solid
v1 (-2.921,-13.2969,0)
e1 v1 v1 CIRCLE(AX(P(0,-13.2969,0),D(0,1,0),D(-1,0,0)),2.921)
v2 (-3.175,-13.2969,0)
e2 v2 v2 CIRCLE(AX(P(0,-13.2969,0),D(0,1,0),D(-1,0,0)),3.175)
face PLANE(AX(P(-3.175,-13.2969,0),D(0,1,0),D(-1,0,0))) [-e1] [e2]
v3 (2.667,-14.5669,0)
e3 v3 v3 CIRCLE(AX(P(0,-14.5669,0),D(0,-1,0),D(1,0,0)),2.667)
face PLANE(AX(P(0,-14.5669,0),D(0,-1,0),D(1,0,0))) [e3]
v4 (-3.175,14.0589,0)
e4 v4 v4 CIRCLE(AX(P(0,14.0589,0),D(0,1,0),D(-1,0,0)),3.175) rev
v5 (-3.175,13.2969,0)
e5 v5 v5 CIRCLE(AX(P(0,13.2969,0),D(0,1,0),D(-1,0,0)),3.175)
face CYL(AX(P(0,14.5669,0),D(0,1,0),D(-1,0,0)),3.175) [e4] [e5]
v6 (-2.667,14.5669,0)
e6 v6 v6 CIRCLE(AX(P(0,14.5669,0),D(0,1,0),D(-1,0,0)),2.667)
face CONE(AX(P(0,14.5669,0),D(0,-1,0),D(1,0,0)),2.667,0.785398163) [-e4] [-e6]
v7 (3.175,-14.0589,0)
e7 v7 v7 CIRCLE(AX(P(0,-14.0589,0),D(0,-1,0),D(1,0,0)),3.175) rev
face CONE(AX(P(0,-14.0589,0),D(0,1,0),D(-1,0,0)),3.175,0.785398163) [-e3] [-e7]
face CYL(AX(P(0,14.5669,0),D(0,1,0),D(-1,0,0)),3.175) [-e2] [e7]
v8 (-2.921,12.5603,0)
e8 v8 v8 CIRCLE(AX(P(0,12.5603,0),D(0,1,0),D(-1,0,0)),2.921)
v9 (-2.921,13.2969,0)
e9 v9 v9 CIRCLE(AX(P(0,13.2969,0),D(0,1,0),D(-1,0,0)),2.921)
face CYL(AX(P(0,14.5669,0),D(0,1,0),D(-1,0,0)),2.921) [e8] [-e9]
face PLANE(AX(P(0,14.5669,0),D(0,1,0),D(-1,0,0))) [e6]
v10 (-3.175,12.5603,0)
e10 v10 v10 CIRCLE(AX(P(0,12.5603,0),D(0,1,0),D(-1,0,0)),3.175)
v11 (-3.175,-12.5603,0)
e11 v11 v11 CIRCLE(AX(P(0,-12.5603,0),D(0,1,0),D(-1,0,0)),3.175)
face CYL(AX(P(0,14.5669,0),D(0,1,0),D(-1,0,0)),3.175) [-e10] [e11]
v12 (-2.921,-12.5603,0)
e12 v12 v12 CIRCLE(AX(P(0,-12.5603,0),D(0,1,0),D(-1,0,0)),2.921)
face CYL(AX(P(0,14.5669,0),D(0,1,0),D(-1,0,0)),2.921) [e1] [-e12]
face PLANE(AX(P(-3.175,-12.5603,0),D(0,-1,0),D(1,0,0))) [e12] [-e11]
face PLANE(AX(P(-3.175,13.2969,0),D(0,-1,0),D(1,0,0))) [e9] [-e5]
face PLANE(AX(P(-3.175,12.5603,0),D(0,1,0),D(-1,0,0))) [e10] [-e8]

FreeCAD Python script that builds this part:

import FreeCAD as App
import Part
import Sketcher

V = App.Vector
Q = App.Units.Quantity


def edges_at(feature, points):
    """Names of the edges that pass closest to the given points."""
    edges = feature.Shape.Edges
    near = lambda p: min(range(len(edges)), key=lambda i: edges[i].distToShape(Part.Vertex(*p))[0])
    return sorted({f"Edge{near(p) + 1}" for p in points})

doc = App.newDocument("Part")
body = doc.addObject("PartDesign::Body", "Body")

sketch1 = body.newObject("Sketcher::SketchObject", "Sketch")
sketch1.AttachmentSupport = (doc.getObject("XY_Plane"), [""])
sketch1.MapMode = "FlatFace"
sketch1.addGeometry([
    Part.LineSegment(V(-3.17, 12.56, 0), V(-3.17, -12.56, 0)),
    Part.LineSegment(V(-3.17, -12.56, 0), V(-2.92, -12.56, 0)),
    Part.LineSegment(V(-2.92, -12.56, 0), V(-2.92, -13.3, 0)),
    Part.LineSegment(V(-2.92, -13.3, 0), V(-3.17, -13.3, 0)),
    Part.LineSegment(V(-3.17, -13.3, 0), V(-3.17, -14.57, 0)),
    Part.LineSegment(V(-3.17, -14.57, 0), V(0, -14.57, 0)),
    Part.LineSegment(V(0, -14.57, 0), V(0, 14.57, 0)),
    Part.LineSegment(V(0, 14.57, 0), V(-3.17, 14.57, 0)),
    Part.LineSegment(V(-3.17, 14.57, 0), V(-3.17, 13.3, 0)),
    Part.LineSegment(V(-3.17, 13.3, 0), V(-2.92, 13.3, 0)),
    Part.LineSegment(V(-2.92, 13.3, 0), V(-2.92, 12.56, 0)),
    Part.LineSegment(V(-2.92, 12.56, 0), V(-3.17, 12.56, 0)),
], False)
sketch1.addConstraint([
    Sketcher.Constraint("Coincident", 0, 2, 1, 1),
    Sketcher.Constraint("Coincident", 1, 2, 2, 1),
    Sketcher.Constraint("Coincident", 2, 2, 3, 1),
    Sketcher.Constraint("Coincident", 3, 2, 4, 1),
    Sketcher.Constraint("Coincident", 4, 2, 5, 1),
    Sketcher.Constraint("Coincident", 5, 2, 6, 1),
    Sketcher.Constraint("Coincident", 6, 2, 7, 1),
    Sketcher.Constraint("Coincident", 7, 2, 8, 1),
    Sketcher.Constraint("Coincident", 8, 2, 9, 1),
    Sketcher.Constraint("Coincident", 9, 2, 10, 1),
    Sketcher.Constraint("Coincident", 10, 2, 11, 1),
    Sketcher.Constraint("Coincident", 11, 2, 0, 1),
    Sketcher.Constraint("Vertical", 0),
    Sketcher.Constraint("Horizontal", 1),
    Sketcher.Constraint("Vertical", 2),
    Sketcher.Constraint("Horizontal", 3),
    Sketcher.Constraint("Vertical", 4),
    Sketcher.Constraint("Horizontal", 5),
    Sketcher.Constraint("Vertical", 6),
    Sketcher.Constraint("Horizontal", 7),
    Sketcher.Constraint("Vertical", 8),
    Sketcher.Constraint("Horizontal", 9),
    Sketcher.Constraint("Vertical", 10),
    Sketcher.Constraint("Horizontal", 11),
    Sketcher.Constraint("Symmetric", 5, 2, 6, 2, -1, 1),
    Sketcher.Constraint("Symmetric", 3, 2, 8, 2, -1),
    Sketcher.Constraint("Symmetric", 1, 2, 10, 2, -1),
    Sketcher.Constraint("Vertical", 0, 2, 3, 2),
    Sketcher.Constraint("DistanceX", 1, 1, 1, 2, Q("0.01 in")),
    Sketcher.Constraint("DistanceY", 4, 2, 4, 1, Q("0.05 in")),
    Sketcher.Constraint("DistanceX", 5, 1, 5, 2, Q("0.125 in")),
    Sketcher.Constraint("DistanceY", 0, 2, 0, 1, Q("0.989 in")),
    Sketcher.Constraint("DistanceY", 2, 2, 2, 1, Q("0.029 in")),
])
revolution = body.newObject("PartDesign::Revolution", "Revolution")
revolution.Profile = sketch1
revolution.ReferenceAxis = (sketch1, ["V_Axis"])
revolution.Angle = 360
doc.recompute()

chamfer = body.newObject("PartDesign::Chamfer", "Chamfer")
chamfer.Base = (revolution, edges_at(revolution, [(3.175, -14.567, 0), (3.175, 14.567, 0)]))
chamfer.Size = Q("0.02 in")

doc.recompute()
